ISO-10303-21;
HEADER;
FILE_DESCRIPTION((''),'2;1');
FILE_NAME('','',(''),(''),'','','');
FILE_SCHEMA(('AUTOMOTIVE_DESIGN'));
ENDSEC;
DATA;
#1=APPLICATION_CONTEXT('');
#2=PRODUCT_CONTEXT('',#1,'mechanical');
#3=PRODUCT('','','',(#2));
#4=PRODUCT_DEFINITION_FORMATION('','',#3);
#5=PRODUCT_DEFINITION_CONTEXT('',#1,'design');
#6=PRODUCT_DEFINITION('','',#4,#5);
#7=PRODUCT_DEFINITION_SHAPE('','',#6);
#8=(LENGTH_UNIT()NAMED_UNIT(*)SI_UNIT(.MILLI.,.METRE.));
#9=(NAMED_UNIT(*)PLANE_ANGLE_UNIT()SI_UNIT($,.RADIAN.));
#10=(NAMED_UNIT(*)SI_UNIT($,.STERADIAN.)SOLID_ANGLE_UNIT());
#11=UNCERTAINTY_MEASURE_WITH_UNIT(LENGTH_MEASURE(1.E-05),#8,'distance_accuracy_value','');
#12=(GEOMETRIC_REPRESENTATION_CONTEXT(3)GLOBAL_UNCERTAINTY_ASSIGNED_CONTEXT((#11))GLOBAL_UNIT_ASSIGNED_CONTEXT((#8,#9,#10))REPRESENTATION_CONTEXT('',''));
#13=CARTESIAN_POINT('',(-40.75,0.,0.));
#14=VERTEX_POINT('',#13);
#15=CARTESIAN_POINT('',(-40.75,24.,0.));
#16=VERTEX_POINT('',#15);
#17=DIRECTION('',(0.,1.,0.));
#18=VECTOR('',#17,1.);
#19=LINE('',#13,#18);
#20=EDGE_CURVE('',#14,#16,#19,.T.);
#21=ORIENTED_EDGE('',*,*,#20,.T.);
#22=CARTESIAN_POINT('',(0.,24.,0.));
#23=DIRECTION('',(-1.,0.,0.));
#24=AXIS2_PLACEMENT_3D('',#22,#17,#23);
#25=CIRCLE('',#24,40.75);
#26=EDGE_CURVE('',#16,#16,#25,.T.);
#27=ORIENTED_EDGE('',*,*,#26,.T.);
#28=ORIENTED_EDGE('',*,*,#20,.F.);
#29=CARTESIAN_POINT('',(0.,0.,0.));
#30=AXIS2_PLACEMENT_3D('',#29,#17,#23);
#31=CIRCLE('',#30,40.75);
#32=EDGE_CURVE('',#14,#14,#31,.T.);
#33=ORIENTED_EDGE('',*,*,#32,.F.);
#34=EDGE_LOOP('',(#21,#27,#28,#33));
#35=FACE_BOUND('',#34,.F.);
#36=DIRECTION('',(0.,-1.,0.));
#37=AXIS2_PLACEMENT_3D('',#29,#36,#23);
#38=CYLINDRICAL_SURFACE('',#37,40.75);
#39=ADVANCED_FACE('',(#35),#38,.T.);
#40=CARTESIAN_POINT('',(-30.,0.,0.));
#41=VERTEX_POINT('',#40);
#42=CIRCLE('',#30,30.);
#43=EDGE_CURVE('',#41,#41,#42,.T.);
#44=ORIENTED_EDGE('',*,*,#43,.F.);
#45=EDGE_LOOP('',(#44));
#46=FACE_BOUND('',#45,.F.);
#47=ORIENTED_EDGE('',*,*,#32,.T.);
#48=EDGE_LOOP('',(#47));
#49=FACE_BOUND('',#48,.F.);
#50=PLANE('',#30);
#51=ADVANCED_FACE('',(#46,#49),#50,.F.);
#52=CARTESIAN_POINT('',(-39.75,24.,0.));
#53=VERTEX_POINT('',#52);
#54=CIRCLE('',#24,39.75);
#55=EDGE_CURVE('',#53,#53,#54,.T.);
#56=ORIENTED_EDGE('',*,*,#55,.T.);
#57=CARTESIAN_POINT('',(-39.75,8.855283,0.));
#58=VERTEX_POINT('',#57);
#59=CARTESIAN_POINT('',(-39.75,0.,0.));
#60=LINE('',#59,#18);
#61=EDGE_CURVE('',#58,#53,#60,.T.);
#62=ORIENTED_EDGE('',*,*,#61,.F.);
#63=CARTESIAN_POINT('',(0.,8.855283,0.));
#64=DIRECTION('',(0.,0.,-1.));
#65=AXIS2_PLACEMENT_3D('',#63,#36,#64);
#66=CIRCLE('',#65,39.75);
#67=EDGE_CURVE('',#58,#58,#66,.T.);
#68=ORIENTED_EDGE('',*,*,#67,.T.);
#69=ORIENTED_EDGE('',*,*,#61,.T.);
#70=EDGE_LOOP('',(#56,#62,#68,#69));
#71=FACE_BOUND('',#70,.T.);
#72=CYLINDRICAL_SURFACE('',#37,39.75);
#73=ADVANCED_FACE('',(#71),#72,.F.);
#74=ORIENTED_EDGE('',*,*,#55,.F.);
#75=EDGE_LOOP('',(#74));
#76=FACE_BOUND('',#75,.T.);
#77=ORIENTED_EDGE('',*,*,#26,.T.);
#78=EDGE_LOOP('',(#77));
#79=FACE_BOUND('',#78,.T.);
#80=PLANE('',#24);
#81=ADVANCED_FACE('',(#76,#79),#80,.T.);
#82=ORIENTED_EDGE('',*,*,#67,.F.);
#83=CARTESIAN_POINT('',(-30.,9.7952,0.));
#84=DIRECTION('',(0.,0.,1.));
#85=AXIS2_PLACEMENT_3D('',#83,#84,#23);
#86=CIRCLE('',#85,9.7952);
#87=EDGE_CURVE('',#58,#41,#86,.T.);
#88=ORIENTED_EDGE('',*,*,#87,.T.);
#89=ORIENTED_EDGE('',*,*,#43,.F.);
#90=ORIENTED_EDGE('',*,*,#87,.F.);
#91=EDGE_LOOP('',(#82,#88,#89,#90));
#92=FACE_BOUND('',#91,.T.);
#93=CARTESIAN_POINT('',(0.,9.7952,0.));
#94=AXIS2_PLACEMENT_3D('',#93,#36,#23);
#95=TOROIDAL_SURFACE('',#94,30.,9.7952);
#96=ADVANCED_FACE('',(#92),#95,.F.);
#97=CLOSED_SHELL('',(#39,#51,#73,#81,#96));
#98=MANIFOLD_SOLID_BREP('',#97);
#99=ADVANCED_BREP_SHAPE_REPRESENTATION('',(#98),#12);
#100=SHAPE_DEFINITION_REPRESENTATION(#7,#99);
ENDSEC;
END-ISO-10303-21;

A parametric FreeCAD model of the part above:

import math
import FreeCAD as App
import Part
import Sketcher
Q = App.Units.Quantity

doc = App.newDocument("Part")
body = doc.addObject("PartDesign::Body", "Body")

# Sketch on XZ plane
sketch1 = body.newObject("Sketcher::SketchObject", "Sketch")
sketch1.AttachmentSupport = (doc.getObject("XZ_Plane"), [""])
sketch1.MapMode = "FlatFace"
sketch1.addGeometry([
    Part.Circle(App.Vector(0, 0, 0), App.Vector(0, 0, 1), 40.75),
    Part.Circle(App.Vector(0, 0, 0), App.Vector(0, 0, 1), 39.75),
], False)
sketch1.addConstraint([
    Sketcher.Constraint("Coincident", 0, 3, -1, 1),
    Sketcher.Constraint("Coincident", 1, 3, -1, 1),
    Sketcher.Constraint("Diameter", 0, Q("81.5 mm")),
    Sketcher.Constraint("Diameter", 1, Q("79.5 mm")),
])
pad1 = body.newObject("PartDesign::Pad", "Pad")
pad1.Profile = sketch1
pad1.Length = 24
pad1.Reversed = True

# Sketch on XY plane
sketch2 = body.newObject("Sketcher::SketchObject", "Sketch001")
sketch2.AttachmentSupport = (doc.getObject("XY_Plane"), [""])
sketch2.MapMode = "FlatFace"
sketch2.addGeometry([
    Part.LineSegment(App.Vector(-39.7678, 0, 0), App.Vector(-30, 0, 0)),
    Part.ArcOfCircle(Part.Circle(App.Vector(-30, 9.7952, 0), App.Vector(0, 0, 1), 9.7952), math.radians(-175.713453), math.radians(-90)),
    Part.LineSegment(App.Vector(-39.7678, 9.063062, 0), App.Vector(-39.7678, 0, 0)),
], False)
sketch2.addConstraint([
    Sketcher.Constraint("Tangent", 0, 2, 1, 2),
    Sketcher.Constraint("Coincident", 1, 1, 2, 1),
    Sketcher.Constraint("Coincident", 2, 2, 0, 1),
    Sketcher.Constraint("Horizontal", 0),
    Sketcher.Constraint("Vertical", 2),
    Sketcher.Constraint("PointOnObject", 0, 2, -1),
    Sketcher.Constraint("DistanceX", 1, 3, -1, 1, Q("30 mm")),
    Sketcher.Constraint("Radius", 1, Q("9.7952 mm")),
    Sketcher.Constraint("DistanceY", 2, 2, 2, 1, Q("9.063 mm")),
])
revolution = body.newObject("PartDesign::Revolution", "Revolution")
revolution.Profile = sketch2
revolution.ReferenceAxis = (sketch2, ["V_Axis"])
revolution.Angle = 360

doc.recompute()
